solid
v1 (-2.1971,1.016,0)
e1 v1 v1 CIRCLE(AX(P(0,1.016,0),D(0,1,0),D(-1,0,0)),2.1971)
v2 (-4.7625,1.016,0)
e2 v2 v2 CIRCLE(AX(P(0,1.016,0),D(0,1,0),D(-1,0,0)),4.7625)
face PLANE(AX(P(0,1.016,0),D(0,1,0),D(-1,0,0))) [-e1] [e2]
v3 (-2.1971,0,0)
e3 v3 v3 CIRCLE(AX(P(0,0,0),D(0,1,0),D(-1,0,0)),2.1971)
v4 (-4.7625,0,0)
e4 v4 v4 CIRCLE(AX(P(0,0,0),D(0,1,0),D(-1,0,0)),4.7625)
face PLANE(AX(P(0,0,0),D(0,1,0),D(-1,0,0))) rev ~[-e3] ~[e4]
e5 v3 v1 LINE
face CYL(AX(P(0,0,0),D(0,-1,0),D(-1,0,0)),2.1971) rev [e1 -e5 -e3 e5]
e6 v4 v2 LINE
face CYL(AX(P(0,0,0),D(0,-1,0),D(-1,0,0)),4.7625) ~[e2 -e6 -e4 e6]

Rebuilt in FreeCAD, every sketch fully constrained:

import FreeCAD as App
import Part
import Sketcher
from FreeCAD import Vector
Q = App.Units.Quantity

doc = App.newDocument("Part")
body = doc.addObject("PartDesign::Body", "Body")

# Sketch on XZ plane
sketch1 = body.newObject("Sketcher::SketchObject", "Sketch")
sketch1.AttachmentSupport = (doc.getObject("XZ_Plane"), [""])
sketch1.MapMode = "FlatFace"
sketch1.addGeometry([
    Part.Circle(Vector(0, 0, 0), Vector(0, 0, 1), 4.7625),
    Part.Circle(Vector(0, 0, 0), Vector(0, 0, 1), 2.1971),
], False)
sketch1.addConstraint([
    Sketcher.Constraint("Coincident", 0, 3, -1, 1),
    Sketcher.Constraint("Coincident", 1, 3, -1, 1),
    Sketcher.Constraint("Diameter", 0, Q("0.375 in")),
    Sketcher.Constraint("Diameter", 1, Q("0.173 in")),
])
pad1 = body.newObject("PartDesign::Pad", "Pad")
pad1.Profile = sketch1
pad1.Length = Q("0.04 in")
pad1.Reversed = True

doc.recompute()
